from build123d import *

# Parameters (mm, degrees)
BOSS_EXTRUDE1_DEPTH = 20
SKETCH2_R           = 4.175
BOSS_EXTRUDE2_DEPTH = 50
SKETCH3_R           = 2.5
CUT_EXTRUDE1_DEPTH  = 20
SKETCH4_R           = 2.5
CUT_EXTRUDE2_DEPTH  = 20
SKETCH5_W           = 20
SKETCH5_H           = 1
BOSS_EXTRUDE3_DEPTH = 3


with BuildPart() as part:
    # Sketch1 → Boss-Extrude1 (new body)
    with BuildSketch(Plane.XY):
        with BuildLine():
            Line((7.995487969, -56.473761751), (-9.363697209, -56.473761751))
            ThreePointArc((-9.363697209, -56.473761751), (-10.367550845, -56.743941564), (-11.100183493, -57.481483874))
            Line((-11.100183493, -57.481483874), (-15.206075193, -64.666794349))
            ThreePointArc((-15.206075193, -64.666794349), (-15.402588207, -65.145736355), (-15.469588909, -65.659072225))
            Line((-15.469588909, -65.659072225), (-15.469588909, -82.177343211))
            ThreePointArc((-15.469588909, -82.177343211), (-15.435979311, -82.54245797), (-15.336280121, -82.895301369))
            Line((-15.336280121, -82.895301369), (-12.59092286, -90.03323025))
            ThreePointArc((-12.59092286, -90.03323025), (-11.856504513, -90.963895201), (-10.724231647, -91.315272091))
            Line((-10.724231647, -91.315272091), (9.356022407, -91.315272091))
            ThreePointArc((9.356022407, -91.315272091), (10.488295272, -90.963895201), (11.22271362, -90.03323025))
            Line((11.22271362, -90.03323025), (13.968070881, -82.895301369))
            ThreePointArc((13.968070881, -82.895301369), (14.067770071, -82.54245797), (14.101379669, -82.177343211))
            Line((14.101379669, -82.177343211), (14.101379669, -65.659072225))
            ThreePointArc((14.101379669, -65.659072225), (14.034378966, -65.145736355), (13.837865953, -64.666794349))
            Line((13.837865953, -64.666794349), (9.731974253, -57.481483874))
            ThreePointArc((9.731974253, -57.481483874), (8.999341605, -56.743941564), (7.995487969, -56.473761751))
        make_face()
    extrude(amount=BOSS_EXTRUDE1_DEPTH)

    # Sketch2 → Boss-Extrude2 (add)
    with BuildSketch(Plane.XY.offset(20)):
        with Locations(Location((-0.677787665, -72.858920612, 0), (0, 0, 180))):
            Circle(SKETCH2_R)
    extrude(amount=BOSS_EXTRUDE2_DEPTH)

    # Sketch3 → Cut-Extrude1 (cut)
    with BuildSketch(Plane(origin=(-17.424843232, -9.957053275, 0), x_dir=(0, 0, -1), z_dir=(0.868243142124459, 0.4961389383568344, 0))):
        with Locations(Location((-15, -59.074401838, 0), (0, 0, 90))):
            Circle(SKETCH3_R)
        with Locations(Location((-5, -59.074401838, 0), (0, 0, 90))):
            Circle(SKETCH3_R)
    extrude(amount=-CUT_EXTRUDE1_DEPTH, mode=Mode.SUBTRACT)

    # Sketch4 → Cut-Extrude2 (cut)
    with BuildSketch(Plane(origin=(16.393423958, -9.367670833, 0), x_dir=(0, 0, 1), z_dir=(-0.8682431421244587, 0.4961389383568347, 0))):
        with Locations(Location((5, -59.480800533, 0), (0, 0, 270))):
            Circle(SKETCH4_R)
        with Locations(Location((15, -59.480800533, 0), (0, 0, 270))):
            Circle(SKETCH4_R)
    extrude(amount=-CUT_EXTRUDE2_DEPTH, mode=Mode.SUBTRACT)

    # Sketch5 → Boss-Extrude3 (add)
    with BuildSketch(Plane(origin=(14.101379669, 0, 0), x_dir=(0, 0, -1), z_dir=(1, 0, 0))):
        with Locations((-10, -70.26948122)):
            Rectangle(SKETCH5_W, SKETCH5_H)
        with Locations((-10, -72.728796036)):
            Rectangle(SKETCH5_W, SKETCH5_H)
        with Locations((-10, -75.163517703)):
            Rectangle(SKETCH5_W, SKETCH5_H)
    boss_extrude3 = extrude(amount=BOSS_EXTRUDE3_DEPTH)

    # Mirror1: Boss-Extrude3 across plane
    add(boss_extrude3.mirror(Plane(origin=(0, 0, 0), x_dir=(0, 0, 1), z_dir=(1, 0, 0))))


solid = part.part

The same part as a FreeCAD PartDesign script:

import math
import FreeCAD as App
import Part
import Sketcher
from FreeCAD import Vector


def add_polygon(sketch, points):
    """Adds a closed chain of lines whose ends are joined by coincident constraints."""
    first, n = sketch.GeometryCount, len(points)
    for a, b in zip(points, points[1:] + points[:1]):
        sketch.addGeometry(Part.LineSegment(App.Vector(*a, 0), App.Vector(*b, 0)), False)
    for i in range(n):
        sketch.addConstraint(Sketcher.Constraint("Coincident", first + i, 2, first + (i + 1) % n, 1))

doc = App.newDocument("Part")
body = doc.addObject("PartDesign::Body", "Body")

# Sketch on XY plane
sketch1 = doc.addObject("Sketcher::SketchObject", "Sketch")
body.addObject(sketch1)
sketch1.AttachmentSupport = (doc.XY_Plane, [""])
sketch1.MapMode = "FlatFace"
sketch1.addGeometry([
    Part.LineSegment(Vector(8, -56.5, 0), Vector(-9.4, -56.5, 0)),  # 0
    Part.ArcOfCircle(Part.Circle(Vector(-9.4, -58.5, 0), Vector(0, 0, 1), 2), math.radians(90), math.radians(150)),  # 1
    Part.LineSegment(Vector(-11.1, -57.5, 0), Vector(-15.2, -64.7, 0)),  # 2
    Part.ArcOfCircle(Part.Circle(Vector(-13.5, -65.7, 0), Vector(0, 0, 1), 2), math.radians(150), math.radians(180)),  # 3
    Part.LineSegment(Vector(-15.5, -65.7, 0), Vector(-15.5, -82.2, 0)),  # 4
    Part.ArcOfCircle(Part.Circle(Vector(-13.5, -82.2, 0), Vector(0, 0, 1), 2), math.radians(180), math.radians(201)),  # 5
    Part.LineSegment(Vector(-15.3, -82.9, 0), Vector(-12.6, -90, 0)),  # 6
    Part.ArcOfCircle(Part.Circle(Vector(-10.7, -89.3, 0), Vector(0, 0, 1), 2), math.radians(-159), math.radians(-90)),  # 7
    Part.LineSegment(Vector(-10.7, -91.3, 0), Vector(9.4, -91.3, 0)),  # 8
    Part.ArcOfCircle(Part.Circle(Vector(9.4, -89.3, 0), Vector(0, 0, 1), 2), math.radians(-90), math.radians(-21)),  # 9
    Part.LineSegment(Vector(11.2, -90, 0), Vector(14, -82.9, 0)),  # 10
    Part.ArcOfCircle(Part.Circle(Vector(12.1, -82.2, 0), Vector(0, 0, 1), 2), math.radians(-21), math.radians(0)),  # 11
    Part.LineSegment(Vector(14.1, -82.2, 0), Vector(14.1, -65.7, 0)),  # 12
    Part.ArcOfCircle(Part.Circle(Vector(12.1, -65.7, 0), Vector(0, 0, 1), 2), math.radians(0), math.radians(30)),  # 13
    Part.LineSegment(Vector(13.8, -64.7, 0), Vector(9.7, -57.5, 0)),  # 14
    Part.ArcOfCircle(Part.Circle(Vector(8, -58.5, 0), Vector(0, 0, 1), 2), math.radians(30), math.radians(90)),  # 15
], False)
sketch1.addConstraint([
    Sketcher.Constraint("Tangent", 0, 2, 1, 1),
    Sketcher.Constraint("Tangent", 1, 2, 2, 1),
    Sketcher.Constraint("Tangent", 2, 2, 3, 1),
    Sketcher.Constraint("Tangent", 3, 2, 4, 1),
    Sketcher.Constraint("Tangent", 4, 2, 5, 1),
    Sketcher.Constraint("Tangent", 5, 2, 6, 1),
    Sketcher.Constraint("Tangent", 6, 2, 7, 1),
    Sketcher.Constraint("Tangent", 7, 2, 8, 1),
    Sketcher.Constraint("Tangent", 8, 2, 9, 1),
    Sketcher.Constraint("Tangent", 9, 2, 10, 1),
    Sketcher.Constraint("Tangent", 10, 2, 11, 1),
    Sketcher.Constraint("Tangent", 11, 2, 12, 1),
    Sketcher.Constraint("Tangent", 12, 2, 13, 1),
    Sketcher.Constraint("Tangent", 13, 2, 14, 1),
    Sketcher.Constraint("Tangent", 14, 2, 15, 1),
    Sketcher.Constraint("Tangent", 15, 2, 0, 1),
    Sketcher.Constraint("Horizontal", 0),
    Sketcher.Constraint("Vertical", 4),
    Sketcher.Constraint("Horizontal", 8),
    Sketcher.Constraint("Vertical", 12),
    Sketcher.Constraint("Equal", 1, 3),
    Sketcher.Constraint("Equal", 3, 5),
    Sketcher.Constraint("Equal", 5, 7),
    Sketcher.Constraint("Equal", 7, 9),
    Sketcher.Constraint("Equal", 9, 11),
    Sketcher.Constraint("Equal", 11, 13),
    Sketcher.Constraint("Equal", 13, 15),
    Sketcher.Constraint("Horizontal", 5, 3, 11, 3),
    Sketcher.Constraint("Horizontal", 3, 3, 13, 3),
    Sketcher.Constraint("Horizontal", 6, 2, 9, 2),
    Sketcher.Constraint("Horizontal", 2, 2, 13, 2),
    Sketcher.Constraint("Radius", 1, 2.0),
    Sketcher.Constraint("DistanceY", 4, 2, 4, 1, 16.518271),
    Sketcher.Constraint("DistanceY", 5, 2, -1, 1, 82.895301),
    Sketcher.Constraint("DistanceY", 7, 3, 3, 3, 23.6562),
    Sketcher.Constraint("Distance", 2, 8.275689),
    Sketcher.Constraint("Distance", 6, 7.64768),
    Sketcher.Constraint("DistanceX", 0, 2, 0, 1, 17.359185),
    Sketcher.Constraint("DistanceX", 8, 1, 8, 2, 20.080254),
    Sketcher.Constraint("DistanceX", 3, 3, -1, 1, 13.469589),
])
pad1 = doc.addObject("PartDesign::Pad", "Pad")
body.addObject(pad1)
pad1.Profile = sketch1
pad1.Length = 20

# Sketch on XY plane
sketch2 = doc.addObject("Sketcher::SketchObject", "Sketch001")
body.addObject(sketch2)
sketch2.AttachmentSupport = (doc.XY_Plane, [""])
sketch2.MapMode = "FlatFace"
sketch2.AttachmentOffset = App.Placement(Vector(0, 0, 20), App.Rotation())
sketch2.addGeometry(Part.Circle(Vector(-0.7, -72.9, 0), Vector(0, 0, 1), 4.2), False)
sketch2.addConstraint([
    Sketcher.Constraint("Diameter", 0, 8.35),
    Sketcher.Constraint("DistanceY", 0, 3, -1, 1, 72.858921),
    Sketcher.Constraint("DistanceX", 0, 3, -1, 1, 0.677788),
])
pad2 = doc.addObject("PartDesign::Pad", "Pad001")
body.addObject(pad2)
pad2.Profile = sketch2
pad2.Length = 50

# Sketch on an angled plane
sketch3 = doc.addObject("Sketcher::SketchObject", "Sketch002")
body.addObject(sketch3)
sketch3.Placement = App.Placement(Vector(-17.424843, -9.957053, 0), App.Rotation(Vector(0, 0, -1), Vector(-0.496138938, 0.868243142, 0), Vector(0.868243142, 0.496138938, 0), "ZXY"))
sketch3.addGeometry([
    Part.Circle(Vector(-15, -59.1, 0), Vector(0, 0, 1), 2.5),
    Part.Circle(Vector(-5, -59.1, 0), Vector(0, 0, 1), 2.5),
], False)
sketch3.addConstraint([
    Sketcher.Constraint("Equal", 0, 1),
    Sketcher.Constraint("Horizontal", 0, 3, 1, 3),
    Sketcher.Constraint("Diameter", 0, 5.0),
    Sketcher.Constraint("DistanceX", 0, 3, -1, 1, 15.0),
    Sketcher.Constraint("DistanceX", 1, 3, -1, 1, 5.0),
    Sketcher.Constraint("DistanceY", 0, 3, -1, 1, 59.074402),
])
pocket1 = doc.addObject("PartDesign::Pocket", "Pocket")
body.addObject(pocket1)
pocket1.Profile = sketch3
pocket1.Length = 20

# Sketch on an angled plane
sketch4 = doc.addObject("Sketcher::SketchObject", "Sketch003")
body.addObject(sketch4)
sketch4.Placement = App.Placement(Vector(16.393424, -9.367671, 0), App.Rotation(Vector(0, 0, 1), Vector(0.496138938, 0.868243142, 0), Vector(-0.868243142, 0.496138938, 0), "ZXY"))
sketch4.addGeometry([
    Part.Circle(Vector(5, -59.5, 0), Vector(0, 0, 1), 2.5),
    Part.Circle(Vector(15, -59.5, 0), Vector(0, 0, 1), 2.5),
], False)
sketch4.addConstraint([
    Sketcher.Constraint("Equal", 0, 1),
    Sketcher.Constraint("Horizontal", 0, 3, 1, 3),
    Sketcher.Constraint("Diameter", 0, 5.0),
    Sketcher.Constraint("DistanceX", -1, 1, 0, 3, 5.0),
    Sketcher.Constraint("DistanceX", -1, 1, 1, 3, 15.0),
    Sketcher.Constraint("DistanceY", 0, 3, -1, 1, 59.4808),
])
pocket2 = doc.addObject("PartDesign::Pocket", "Pocket001")
body.addObject(pocket2)
pocket2.Profile = sketch4
pocket2.Length = 20

# Sketch on YZ plane
sketch5 = doc.addObject("Sketcher::SketchObject", "Sketch004")
body.addObject(sketch5)
sketch5.AttachmentSupport = (doc.YZ_Plane, [""])
sketch5.MapMode = "FlatFace"
sketch5.AttachmentOffset = App.Placement(Vector(0, 0, 14.10138), App.Rotation())
add_polygon(sketch5, [(-69.8, 20), (-70.8, 20), (-70.8, 0), (-69.8, 0)])  # lines 0-3
add_polygon(sketch5, [(-72.2, 20), (-73.2, 20), (-73.2, 0), (-72.2, 0)])  # lines 4-7
add_polygon(sketch5, [(-74.7, 20), (-75.7, 20), (-75.7, 0), (-74.7, 0)])  # lines 8-11
sketch5.addConstraint([
    Sketcher.Constraint("Horizontal", 0),
    Sketcher.Constraint("Vertical", 1),
    Sketcher.Constraint("Horizontal", 2),
    Sketcher.Constraint("Vertical", 3),
    Sketcher.Constraint("Horizontal", 4),
    Sketcher.Constraint("Vertical", 5),
    Sketcher.Constraint("Horizontal", 6),
    Sketcher.Constraint("Vertical", 7),
    Sketcher.Constraint("Horizontal", 8),
    Sketcher.Constraint("Vertical", 9),
    Sketcher.Constraint("Horizontal", 10),
    Sketcher.Constraint("Vertical", 11),
    Sketcher.Constraint("PointOnObject", 1, 2, -1),
    Sketcher.Constraint("PointOnObject", 5, 2, -1),
    Sketcher.Constraint("PointOnObject", 9, 2, -1),
    Sketcher.Constraint("Horizontal", 3, 2, 4, 2),
    Sketcher.Constraint("Horizontal", 7, 2, 8, 2),
    Sketcher.Constraint("Equal", 2, 4),
    Sketcher.Constraint("Equal", 6, 8),
    Sketcher.Constraint("DistanceX", 0, 2, 0, 1, 1.0),
    Sketcher.Constraint("DistanceY", 1, 2, 1, 1, 20.0),
    Sketcher.Constraint("DistanceX", 0, 2, -1, 1, 70.769481),
    Sketcher.Constraint("DistanceX", 8, 2, 4, 2, 2.434722),
    Sketcher.Constraint("DistanceX", 4, 2, -1, 1, 73.228796),
])
pad3 = doc.addObject("PartDesign::Pad", "Pad002")
body.addObject(pad3)
pad3.Profile = sketch5
pad3.Length = 3
doc.recompute()

mirrored = doc.addObject("PartDesign::Mirrored", "Mirrored")
body.addObject(mirrored)
mirrored.Originals = [pad3]
mirrored.MirrorPlane = (doc.YZ_Plane, [""])
body.Tip = mirrored

doc.recompute()
